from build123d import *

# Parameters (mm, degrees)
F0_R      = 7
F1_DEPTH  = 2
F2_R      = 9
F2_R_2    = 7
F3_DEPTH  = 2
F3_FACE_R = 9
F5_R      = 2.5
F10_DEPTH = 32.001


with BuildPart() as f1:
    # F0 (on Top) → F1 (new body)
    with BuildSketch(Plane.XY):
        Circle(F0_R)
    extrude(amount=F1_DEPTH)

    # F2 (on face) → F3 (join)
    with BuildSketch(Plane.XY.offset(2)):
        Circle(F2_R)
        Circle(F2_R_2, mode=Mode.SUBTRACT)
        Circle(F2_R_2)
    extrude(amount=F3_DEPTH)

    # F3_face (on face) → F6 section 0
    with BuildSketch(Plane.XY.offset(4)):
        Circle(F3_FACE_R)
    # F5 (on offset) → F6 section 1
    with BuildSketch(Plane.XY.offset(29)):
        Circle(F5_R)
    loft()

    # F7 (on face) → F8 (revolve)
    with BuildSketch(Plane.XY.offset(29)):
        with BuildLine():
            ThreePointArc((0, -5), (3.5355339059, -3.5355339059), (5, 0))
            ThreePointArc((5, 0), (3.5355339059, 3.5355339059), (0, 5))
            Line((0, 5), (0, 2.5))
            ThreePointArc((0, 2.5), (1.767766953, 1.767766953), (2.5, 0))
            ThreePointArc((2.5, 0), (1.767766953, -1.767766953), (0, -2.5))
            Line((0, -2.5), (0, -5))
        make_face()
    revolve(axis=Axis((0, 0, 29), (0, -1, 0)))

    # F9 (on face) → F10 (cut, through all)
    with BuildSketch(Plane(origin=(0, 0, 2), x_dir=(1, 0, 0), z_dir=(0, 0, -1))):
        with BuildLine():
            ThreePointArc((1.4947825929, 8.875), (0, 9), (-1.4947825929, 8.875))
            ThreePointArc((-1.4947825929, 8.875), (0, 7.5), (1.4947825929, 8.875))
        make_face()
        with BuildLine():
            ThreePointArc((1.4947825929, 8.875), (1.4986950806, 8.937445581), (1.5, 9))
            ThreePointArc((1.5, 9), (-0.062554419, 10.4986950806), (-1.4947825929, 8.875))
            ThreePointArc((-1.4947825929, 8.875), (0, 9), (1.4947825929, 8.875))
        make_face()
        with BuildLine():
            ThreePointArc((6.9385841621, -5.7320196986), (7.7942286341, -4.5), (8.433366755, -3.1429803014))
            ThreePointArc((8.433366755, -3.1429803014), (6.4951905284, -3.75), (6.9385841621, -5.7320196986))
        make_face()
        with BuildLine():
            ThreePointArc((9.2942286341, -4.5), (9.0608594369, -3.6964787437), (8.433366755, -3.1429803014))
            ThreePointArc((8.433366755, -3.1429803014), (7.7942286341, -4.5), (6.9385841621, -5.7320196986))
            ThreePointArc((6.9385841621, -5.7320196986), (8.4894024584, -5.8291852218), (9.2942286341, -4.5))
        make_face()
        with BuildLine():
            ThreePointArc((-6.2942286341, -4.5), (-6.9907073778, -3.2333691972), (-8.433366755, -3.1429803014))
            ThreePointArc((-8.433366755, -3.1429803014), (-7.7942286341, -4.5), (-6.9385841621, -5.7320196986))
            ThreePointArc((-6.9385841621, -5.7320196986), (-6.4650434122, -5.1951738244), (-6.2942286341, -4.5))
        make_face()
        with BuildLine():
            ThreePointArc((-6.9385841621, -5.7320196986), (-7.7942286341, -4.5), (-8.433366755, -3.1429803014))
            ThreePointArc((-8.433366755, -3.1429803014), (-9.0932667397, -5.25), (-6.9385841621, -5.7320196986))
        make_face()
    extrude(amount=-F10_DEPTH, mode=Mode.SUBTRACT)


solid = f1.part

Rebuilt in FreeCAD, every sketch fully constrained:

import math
import FreeCAD as App
import Part
import Sketcher

doc = App.newDocument("Part")
body = doc.addObject("PartDesign::Body", "Body")

sketch1 = doc.addObject("Sketcher::SketchObject", "Sketch")
body.addObject(sketch1)
sketch1.AttachmentSupport = (doc.XY_Plane, [""])
sketch1.MapMode = "FlatFace"
sketch1.addGeometry(Part.Circle(App.Vector(0, 0, 0), App.Vector(0, 0, 1), 7), False)
sketch1.addConstraint(Sketcher.Constraint("Coincident", 0, 3, -1, 1))
sketch1.addConstraint(Sketcher.Constraint("Diameter", 0, 14.0))
pad1 = doc.addObject("PartDesign::Pad", "Pad")
body.addObject(pad1)
pad1.Profile = sketch1
pad1.Length = 2

sketch2 = doc.addObject("Sketcher::SketchObject", "Sketch001")
body.addObject(sketch2)
sketch2.AttachmentSupport = (doc.XY_Plane, [""])
sketch2.MapMode = "FlatFace"
sketch2.AttachmentOffset = App.Placement(App.Vector(0, 0, 2), App.Rotation())
sketch2.addGeometry(Part.Circle(App.Vector(0, 0, 0), App.Vector(0, 0, 1), 9), False)
sketch2.addConstraint(Sketcher.Constraint("Coincident", 0, 3, -1, 1))
sketch2.addConstraint(Sketcher.Constraint("Diameter", 0, 18.0))
pad2 = doc.addObject("PartDesign::Pad", "Pad001")
body.addObject(pad2)
pad2.Profile = sketch2
pad2.Length = 2

sketch3 = doc.addObject("Sketcher::SketchObject", "Sketch002")
body.addObject(sketch3)
sketch3.AttachmentSupport = (doc.XY_Plane, [""])
sketch3.MapMode = "FlatFace"
sketch3.AttachmentOffset = App.Placement(App.Vector(0, 0, 4), App.Rotation())
sketch3.addGeometry(Part.Circle(App.Vector(0, 0, 0), App.Vector(0, 0, 1), 9), False)
sketch3.addConstraint(Sketcher.Constraint("Coincident", 0, 3, -1, 1))
sketch3.addConstraint(Sketcher.Constraint("Diameter", 0, 18.0))

sketch4 = doc.addObject("Sketcher::SketchObject", "Sketch003")
body.addObject(sketch4)
sketch4.AttachmentSupport = (doc.XY_Plane, [""])
sketch4.MapMode = "FlatFace"
sketch4.AttachmentOffset = App.Placement(App.Vector(0, 0, 29), App.Rotation())
sketch4.addGeometry(Part.Circle(App.Vector(0, 0, 0), App.Vector(0, 0, 1), 2.5), False)
sketch4.addConstraint(Sketcher.Constraint("Coincident", 0, 3, -1, 1))
sketch4.addConstraint(Sketcher.Constraint("Diameter", 0, 5.0))

additiveloft = doc.addObject("PartDesign::AdditiveLoft", "AdditiveLoft")
body.addObject(additiveloft)
additiveloft.Profile = sketch3
additiveloft.Sections = [sketch4]

sketch5 = doc.addObject("Sketcher::SketchObject", "Sketch004")
body.addObject(sketch5)
sketch5.AttachmentSupport = (doc.XY_Plane, [""])
sketch5.MapMode = "FlatFace"
sketch5.AttachmentOffset = App.Placement(App.Vector(0, 0, 29), App.Rotation())
sketch5.addGeometry(Part.ArcOfCircle(Part.Circle(App.Vector(0, 0, 0), App.Vector(0, 0, 1), 5), math.radians(-90), math.radians(0)), False)
sketch5.addGeometry(Part.ArcOfCircle(Part.Circle(App.Vector(0, 0, 0), App.Vector(0, 0, 1), 5), math.radians(0), math.radians(90)), False)
sketch5.addGeometry(Part.LineSegment(App.Vector(0, 5, 0), App.Vector(0, 2.5, 0)), False)
sketch5.addGeometry(Part.ArcOfCircle(Part.Circle(App.Vector(0, 0, 0), App.Vector(0, 0, 1), 2.5), math.radians(0), math.radians(90)), False)
sketch5.addGeometry(Part.ArcOfCircle(Part.Circle(App.Vector(0, 0, 0), App.Vector(0, 0, 1), 2.5), math.radians(-90), math.radians(0)), False)
sketch5.addGeometry(Part.LineSegment(App.Vector(0, -2.5, 0), App.Vector(0, -5, 0)), False)
sketch5.addConstraint(Sketcher.Constraint("Tangent", 0, 2, 1, 1))
sketch5.addConstraint(Sketcher.Constraint("Coincident", 1, 2, 2, 1))
sketch5.addConstraint(Sketcher.Constraint("Coincident", 2, 2, 3, 2))
sketch5.addConstraint(Sketcher.Constraint("Tangent", 3, 1, 4, 2))
sketch5.addConstraint(Sketcher.Constraint("Coincident", 4, 1, 5, 1))
sketch5.addConstraint(Sketcher.Constraint("Coincident", 5, 2, 0, 1))
sketch5.addConstraint(Sketcher.Constraint("Vertical", 2))
sketch5.addConstraint(Sketcher.Constraint("Vertical", 5))
sketch5.addConstraint(Sketcher.Constraint("Coincident", 0, 3, -1, 1))
sketch5.addConstraint(Sketcher.Constraint("Coincident", 3, 3, -1, 1))
sketch5.addConstraint(Sketcher.Constraint("Equal", 0, 1))
sketch5.addConstraint(Sketcher.Constraint("Equal", 3, 4))
sketch5.addConstraint(Sketcher.Constraint("PointOnObject", 0, 2, -1))
sketch5.addConstraint(Sketcher.Constraint("PointOnObject", 1, 2, -2))
sketch5.addConstraint(Sketcher.Constraint("PointOnObject", 3, 1, -1))
sketch5.addConstraint(Sketcher.Constraint("PointOnObject", 4, 1, -2))
sketch5.addConstraint(Sketcher.Constraint("Radius", 0, 5.0))
sketch5.addConstraint(Sketcher.Constraint("Radius", 3, 2.5))
revolution = doc.addObject("PartDesign::Revolution", "Revolution")
body.addObject(revolution)
revolution.Profile = sketch5
revolution.ReferenceAxis = (sketch5, ["V_Axis"])
revolution.Angle = 360

sketch6 = doc.addObject("Sketcher::SketchObject", "Sketch005")
body.addObject(sketch6)
sketch6.AttachmentSupport = (doc.XY_Plane, [""])
sketch6.MapMode = "FlatFace"
sketch6.AttachmentOffset = App.Placement(App.Vector(0, 0, 2), App.Rotation())
sketch6.addGeometry(Part.ArcOfCircle(Part.Circle(App.Vector(0, -9, 0), App.Vector(0, 0, 1), 1.5), math.radians(5), math.radians(175)), False)
sketch6.addGeometry(Part.ArcOfCircle(Part.Circle(App.Vector(0, -9, 0), App.Vector(0, 0, 1), 1.5), math.radians(0), math.radians(4.78)), False)
sketch6.addGeometry(Part.ArcOfCircle(Part.Circle(App.Vector(0, -9, 0), App.Vector(0, 0, 1), 1.5), math.radians(175), math.radians(360)), False)
sketch6.addGeometry(Part.ArcOfCircle(Part.Circle(App.Vector(7.79, 4.5, 0), App.Vector(0, 0, 1), 1.5), math.radians(125), math.radians(295)), False)
sketch6.addGeometry(Part.ArcOfCircle(Part.Circle(App.Vector(7.79, 4.5, 0), App.Vector(0, 0, 1), 1.5), math.radians(0), math.radians(125)), False)
sketch6.addGeometry(Part.ArcOfCircle(Part.Circle(App.Vector(7.79, 4.5, 0), App.Vector(0, 0, 1), 1.5), math.radians(-65), math.radians(0)), False)
sketch6.addGeometry(Part.ArcOfCircle(Part.Circle(App.Vector(-7.79, 4.5, 0), App.Vector(0, 0, 1), 1.5), math.radians(-115), math.radians(0)), False)
sketch6.addGeometry(Part.ArcOfCircle(Part.Circle(App.Vector(-7.79, 4.5, 0), App.Vector(0, 0, 1), 1.5), math.radians(55), math.radians(245)), False)
sketch6.addGeometry(Part.ArcOfCircle(Part.Circle(App.Vector(-7.79, 4.5, 0), App.Vector(0, 0, 1), 1.5), math.radians(0), math.radians(55)), False)
sketch6.addConstraint(Sketcher.Constraint("Tangent", 0, 1, 1, 2))
sketch6.addConstraint(Sketcher.Constraint("Tangent", 1, 1, 2, 2))
sketch6.addConstraint(Sketcher.Constraint("Tangent", 2, 1, 0, 2))
sketch6.addConstraint(Sketcher.Constraint("Tangent", 3, 1, 4, 2))
sketch6.addConstraint(Sketcher.Constraint("Tangent", 4, 1, 5, 2))
sketch6.addConstraint(Sketcher.Constraint("Tangent", 5, 1, 3, 2))
sketch6.addConstraint(Sketcher.Constraint("Tangent", 6, 1, 7, 2))
sketch6.addConstraint(Sketcher.Constraint("Tangent", 7, 1, 8, 2))
sketch6.addConstraint(Sketcher.Constraint("Tangent", 8, 1, 6, 2))
sketch6.addConstraint(Sketcher.Constraint("Equal", 2, 3))
sketch6.addConstraint(Sketcher.Constraint("Equal", 5, 6))
sketch6.addConstraint(Sketcher.Constraint("Symmetric", 3, 3, 6, 3, -2))
sketch6.addConstraint(Sketcher.Constraint("Symmetric", 0, 1, 2, 1, -2))
sketch6.addConstraint(Sketcher.Constraint("Horizontal", 2, 3, 1, 1))
sketch6.addConstraint(Sketcher.Constraint("Horizontal", 8, 3, 4, 1))
sketch6.addConstraint(Sketcher.Constraint("Horizontal", 5, 1, 6, 1))
sketch6.addConstraint(Sketcher.Constraint("Horizontal", 3, 1, 7, 1))
sketch6.addConstraint(Sketcher.Constraint("Horizontal", 4, 1, 8, 1))
sketch6.addConstraint(Sketcher.Constraint("Radius", 0, 1.5))
sketch6.addConstraint(Sketcher.Constraint("DistanceY", 0, 3, -1, 1, 9.0))
sketch6.addConstraint(Sketcher.Constraint("DistanceY", -1, 1, 3, 3, 4.5))
sketch6.addConstraint(Sketcher.Constraint("DistanceY", 0, 1, -1, 1, 8.875))
sketch6.addConstraint(Sketcher.Constraint("DistanceX", -1, 1, 3, 3, 7.794229))
sketch6.addConstraint(Sketcher.Constraint("DistanceY", -1, 1, 3, 1, 5.73202))
sketch6.addConstraint(Sketcher.Constraint("DistanceY", -1, 1, 5, 1, 3.14298))
pocket1 = doc.addObject("PartDesign::Pocket", "Pocket")
body.addObject(pocket1)
pocket1.Profile = sketch6
pocket1.Type = "ThroughAll"
pocket1.Reversed = True

doc.recompute()
